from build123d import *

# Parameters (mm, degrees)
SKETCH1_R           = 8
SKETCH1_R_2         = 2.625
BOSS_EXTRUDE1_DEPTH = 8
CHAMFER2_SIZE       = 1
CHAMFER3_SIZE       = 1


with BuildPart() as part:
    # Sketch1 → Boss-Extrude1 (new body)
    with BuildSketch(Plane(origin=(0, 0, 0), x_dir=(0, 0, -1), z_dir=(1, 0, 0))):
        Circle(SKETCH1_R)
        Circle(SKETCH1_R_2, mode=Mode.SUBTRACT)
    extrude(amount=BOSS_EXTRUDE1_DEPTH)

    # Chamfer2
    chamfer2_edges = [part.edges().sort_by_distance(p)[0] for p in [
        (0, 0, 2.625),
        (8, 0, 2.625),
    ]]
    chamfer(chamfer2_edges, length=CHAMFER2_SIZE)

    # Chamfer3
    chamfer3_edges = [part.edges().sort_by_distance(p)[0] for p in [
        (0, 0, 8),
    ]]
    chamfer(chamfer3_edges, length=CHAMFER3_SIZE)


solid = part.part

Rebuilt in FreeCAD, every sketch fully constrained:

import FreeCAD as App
import Part
import Sketcher

V = App.Vector


def edges_at(feature, points):
    """Names of the edges that pass closest to the given points."""
    edges = feature.Shape.Edges
    near = lambda p: min(range(len(edges)), key=lambda i: edges[i].distToShape(Part.Vertex(*p))[0])
    return sorted({f"Edge{near(p) + 1}" for p in points})

doc = App.newDocument("Part")
params = doc.addObject("Spreadsheet::Sheet", "Params")
for row, (alias, value) in enumerate([
    ("sketch1_diameter", "16 mm"),
    ("sketch1_diameter2", "5.25 mm"),
    ("pad1_length", "8 mm"),
    ("chamfer_size", "1 mm"),
    ("chamfer2_size", "1 mm"),
], start=1):
    params.set(f"A{row}", alias)
    params.set(f"B{row}", "=" + value)
    params.setAlias(f"B{row}", alias)

body = doc.addObject("PartDesign::Body", "Body")

sketch1 = body.newObject("Sketcher::SketchObject", "Sketch")
sketch1.AttachmentSupport = (doc.getObject("YZ_Plane"), [""])
sketch1.MapMode = "FlatFace"
sketch1.addGeometry([
    Part.Circle(V(0, 0, 0), V(0, 0, 1), 8),
    Part.Circle(V(0, 0, 0), V(0, 0, 1), 2.6),
], False)
sketch1.addConstraint([
    Sketcher.Constraint("Coincident", 0, 3, -1, 1),
    Sketcher.Constraint("Coincident", 1, 3, -1, 1),
    Sketcher.Constraint("Diameter", 0, 16.0),
    Sketcher.Constraint("Diameter", 1, 5.25),
])
sketch1.setExpression("Constraints[2]", "Params.sketch1_diameter")
sketch1.setExpression("Constraints[3]", "Params.sketch1_diameter2")
pad1 = body.newObject("PartDesign::Pad", "Pad")
pad1.Profile = sketch1
pad1.setExpression("Length", "Params.pad1_length")
doc.recompute()

chamfer = body.newObject("PartDesign::Chamfer", "Chamfer")
chamfer.Base = (pad1, edges_at(pad1, [(0, 0, 2.625), (8, 0, 2.625)]))
chamfer.setExpression("Size", "Params.chamfer_size")
doc.recompute()

chamfer2 = body.newObject("PartDesign::Chamfer", "Chamfer001")
chamfer2.Base = (chamfer, edges_at(chamfer, [(0, 0, 8)]))
chamfer2.setExpression("Size", "Params.chamfer2_size")

doc.recompute()
